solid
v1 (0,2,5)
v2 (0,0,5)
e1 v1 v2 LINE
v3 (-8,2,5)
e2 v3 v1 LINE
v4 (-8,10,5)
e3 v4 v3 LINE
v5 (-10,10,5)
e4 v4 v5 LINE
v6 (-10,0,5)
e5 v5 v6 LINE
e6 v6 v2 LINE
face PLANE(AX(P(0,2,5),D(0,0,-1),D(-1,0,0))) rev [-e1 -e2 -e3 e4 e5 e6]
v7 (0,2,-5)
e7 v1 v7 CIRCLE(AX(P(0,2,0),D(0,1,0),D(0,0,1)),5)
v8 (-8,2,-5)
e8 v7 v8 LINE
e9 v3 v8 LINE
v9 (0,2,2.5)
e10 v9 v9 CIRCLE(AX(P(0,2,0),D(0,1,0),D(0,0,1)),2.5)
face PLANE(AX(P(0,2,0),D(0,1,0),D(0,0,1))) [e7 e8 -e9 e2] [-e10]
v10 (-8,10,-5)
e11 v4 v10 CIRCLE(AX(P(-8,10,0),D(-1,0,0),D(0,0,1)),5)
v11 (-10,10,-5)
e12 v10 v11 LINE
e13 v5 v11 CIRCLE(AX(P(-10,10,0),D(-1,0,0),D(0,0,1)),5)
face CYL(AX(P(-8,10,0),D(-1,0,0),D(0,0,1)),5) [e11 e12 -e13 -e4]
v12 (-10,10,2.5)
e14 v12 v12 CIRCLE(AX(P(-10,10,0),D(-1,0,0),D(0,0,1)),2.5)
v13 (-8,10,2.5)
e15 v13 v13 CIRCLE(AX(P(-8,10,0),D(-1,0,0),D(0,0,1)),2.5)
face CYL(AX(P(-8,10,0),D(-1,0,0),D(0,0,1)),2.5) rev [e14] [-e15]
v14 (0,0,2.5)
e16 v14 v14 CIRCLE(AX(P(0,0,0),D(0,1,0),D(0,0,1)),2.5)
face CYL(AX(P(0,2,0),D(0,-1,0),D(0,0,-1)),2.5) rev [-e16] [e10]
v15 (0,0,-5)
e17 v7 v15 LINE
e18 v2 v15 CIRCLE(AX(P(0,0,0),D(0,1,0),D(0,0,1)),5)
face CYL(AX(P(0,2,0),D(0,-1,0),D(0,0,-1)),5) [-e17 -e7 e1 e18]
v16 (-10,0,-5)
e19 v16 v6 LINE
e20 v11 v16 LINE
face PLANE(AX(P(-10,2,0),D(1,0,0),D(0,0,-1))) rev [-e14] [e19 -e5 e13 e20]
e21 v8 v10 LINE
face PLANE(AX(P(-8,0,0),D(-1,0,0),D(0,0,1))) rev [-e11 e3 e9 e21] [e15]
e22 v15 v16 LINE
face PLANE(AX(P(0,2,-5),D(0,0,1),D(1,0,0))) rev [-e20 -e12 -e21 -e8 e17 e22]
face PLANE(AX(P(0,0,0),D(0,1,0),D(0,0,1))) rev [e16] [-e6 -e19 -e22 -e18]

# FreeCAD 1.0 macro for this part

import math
import FreeCAD as App
import Part
import Sketcher

doc = App.newDocument("Part")
body = doc.addObject("PartDesign::Body", "Body")

sketch1 = body.newObject("Sketcher::SketchObject", "Sketch")
sketch1.AttachmentSupport = (doc.getObject("XZ_Plane"), [""])
sketch1.MapMode = "FlatFace"
sketch1.addGeometry(Part.LineSegment(App.Vector(0, -5, 0), App.Vector(-10, -5, 0)), False)
sketch1.addGeometry(Part.LineSegment(App.Vector(-10, -5, 0), App.Vector(-10, 5, 0)), False)
sketch1.addGeometry(Part.LineSegment(App.Vector(-10, 5, 0), App.Vector(0, 5, 0)), False)
sketch1.addGeometry(Part.ArcOfCircle(Part.Circle(App.Vector(0, 0, 0), App.Vector(0, 0, 1), 5), math.radians(-90), math.radians(90)), False)
sketch1.addGeometry(Part.Circle(App.Vector(0, 0, 0), App.Vector(0, 0, 1), 2.5), False)
sketch1.addConstraint(Sketcher.Constraint("Coincident", 0, 2, 1, 1))
sketch1.addConstraint(Sketcher.Constraint("Coincident", 1, 2, 2, 1))
sketch1.addConstraint(Sketcher.Constraint("Tangent", 2, 2, 3, 2))
sketch1.addConstraint(Sketcher.Constraint("Tangent", 3, 1, 0, 1))
sketch1.addConstraint(Sketcher.Constraint("Horizontal", 0))
sketch1.addConstraint(Sketcher.Constraint("Vertical", 1))
sketch1.addConstraint(Sketcher.Constraint("Horizontal", 2))
sketch1.addConstraint(Sketcher.Constraint("Coincident", 3, 3, -1, 1))
sketch1.addConstraint(Sketcher.Constraint("Coincident", 4, 3, -1, 1))
sketch1.addConstraint(Sketcher.Constraint("Equal", 2, 1))
sketch1.addConstraint(Sketcher.Constraint("Diameter", 4, 5.0))
sketch1.addConstraint(Sketcher.Constraint("Radius", 3, 5.0))
pad1 = body.newObject("PartDesign::Pad", "Pad")
pad1.Profile = sketch1
pad1.Length = 2
pad1.Reversed = True

sketch2 = body.newObject("Sketcher::SketchObject", "Sketch001")
sketch2.AttachmentSupport = (doc.getObject("YZ_Plane"), [""])
sketch2.MapMode = "FlatFace"
sketch2.AttachmentOffset = App.Placement(App.Vector(0, 0, -10), App.Rotation())
sketch2.addGeometry(Part.ArcOfCircle(Part.Circle(App.Vector(10, 0, 0), App.Vector(0, 0, 1), 5), math.radians(-90), math.radians(90)), False)
sketch2.addGeometry(Part.LineSegment(App.Vector(10, -5, 0), App.Vector(2, -5, 0)), False)
sketch2.addGeometry(Part.LineSegment(App.Vector(2, -5, 0), App.Vector(2, 5, 0)), False)
sketch2.addGeometry(Part.LineSegment(App.Vector(2, 5, 0), App.Vector(10, 5, 0)), False)
sketch2.addGeometry(Part.Circle(App.Vector(10, 0, 0), App.Vector(0, 0, 1), 2.5), False)
sketch2.addConstraint(Sketcher.Constraint("Tangent", 0, 1, 1, 1))
sketch2.addConstraint(Sketcher.Constraint("Coincident", 1, 2, 2, 1))
sketch2.addConstraint(Sketcher.Constraint("Coincident", 2, 2, 3, 1))
sketch2.addConstraint(Sketcher.Constraint("Tangent", 3, 2, 0, 2))
sketch2.addConstraint(Sketcher.Constraint("Horizontal", 1))
sketch2.addConstraint(Sketcher.Constraint("Vertical", 2))
sketch2.addConstraint(Sketcher.Constraint("Horizontal", 3))
sketch2.addConstraint(Sketcher.Constraint("Coincident", 4, 3, 0, 3))
sketch2.addConstraint(Sketcher.Constraint("PointOnObject", 0, 3, -1))
sketch2.addConstraint(Sketcher.Constraint("Diameter", 4, 5.0))
sketch2.addConstraint(Sketcher.Constraint("Radius", 0, 5.0))
sketch2.addConstraint(Sketcher.Constraint("DistanceX", 1, 2, 1, 1, 8.0))
sketch2.addConstraint(Sketcher.Constraint("DistanceX", -1, 1, 0, 3, 10.0))
pad2 = body.newObject("PartDesign::Pad", "Pad001")
pad2.Profile = sketch2
pad2.Length = 2

doc.recompute()
